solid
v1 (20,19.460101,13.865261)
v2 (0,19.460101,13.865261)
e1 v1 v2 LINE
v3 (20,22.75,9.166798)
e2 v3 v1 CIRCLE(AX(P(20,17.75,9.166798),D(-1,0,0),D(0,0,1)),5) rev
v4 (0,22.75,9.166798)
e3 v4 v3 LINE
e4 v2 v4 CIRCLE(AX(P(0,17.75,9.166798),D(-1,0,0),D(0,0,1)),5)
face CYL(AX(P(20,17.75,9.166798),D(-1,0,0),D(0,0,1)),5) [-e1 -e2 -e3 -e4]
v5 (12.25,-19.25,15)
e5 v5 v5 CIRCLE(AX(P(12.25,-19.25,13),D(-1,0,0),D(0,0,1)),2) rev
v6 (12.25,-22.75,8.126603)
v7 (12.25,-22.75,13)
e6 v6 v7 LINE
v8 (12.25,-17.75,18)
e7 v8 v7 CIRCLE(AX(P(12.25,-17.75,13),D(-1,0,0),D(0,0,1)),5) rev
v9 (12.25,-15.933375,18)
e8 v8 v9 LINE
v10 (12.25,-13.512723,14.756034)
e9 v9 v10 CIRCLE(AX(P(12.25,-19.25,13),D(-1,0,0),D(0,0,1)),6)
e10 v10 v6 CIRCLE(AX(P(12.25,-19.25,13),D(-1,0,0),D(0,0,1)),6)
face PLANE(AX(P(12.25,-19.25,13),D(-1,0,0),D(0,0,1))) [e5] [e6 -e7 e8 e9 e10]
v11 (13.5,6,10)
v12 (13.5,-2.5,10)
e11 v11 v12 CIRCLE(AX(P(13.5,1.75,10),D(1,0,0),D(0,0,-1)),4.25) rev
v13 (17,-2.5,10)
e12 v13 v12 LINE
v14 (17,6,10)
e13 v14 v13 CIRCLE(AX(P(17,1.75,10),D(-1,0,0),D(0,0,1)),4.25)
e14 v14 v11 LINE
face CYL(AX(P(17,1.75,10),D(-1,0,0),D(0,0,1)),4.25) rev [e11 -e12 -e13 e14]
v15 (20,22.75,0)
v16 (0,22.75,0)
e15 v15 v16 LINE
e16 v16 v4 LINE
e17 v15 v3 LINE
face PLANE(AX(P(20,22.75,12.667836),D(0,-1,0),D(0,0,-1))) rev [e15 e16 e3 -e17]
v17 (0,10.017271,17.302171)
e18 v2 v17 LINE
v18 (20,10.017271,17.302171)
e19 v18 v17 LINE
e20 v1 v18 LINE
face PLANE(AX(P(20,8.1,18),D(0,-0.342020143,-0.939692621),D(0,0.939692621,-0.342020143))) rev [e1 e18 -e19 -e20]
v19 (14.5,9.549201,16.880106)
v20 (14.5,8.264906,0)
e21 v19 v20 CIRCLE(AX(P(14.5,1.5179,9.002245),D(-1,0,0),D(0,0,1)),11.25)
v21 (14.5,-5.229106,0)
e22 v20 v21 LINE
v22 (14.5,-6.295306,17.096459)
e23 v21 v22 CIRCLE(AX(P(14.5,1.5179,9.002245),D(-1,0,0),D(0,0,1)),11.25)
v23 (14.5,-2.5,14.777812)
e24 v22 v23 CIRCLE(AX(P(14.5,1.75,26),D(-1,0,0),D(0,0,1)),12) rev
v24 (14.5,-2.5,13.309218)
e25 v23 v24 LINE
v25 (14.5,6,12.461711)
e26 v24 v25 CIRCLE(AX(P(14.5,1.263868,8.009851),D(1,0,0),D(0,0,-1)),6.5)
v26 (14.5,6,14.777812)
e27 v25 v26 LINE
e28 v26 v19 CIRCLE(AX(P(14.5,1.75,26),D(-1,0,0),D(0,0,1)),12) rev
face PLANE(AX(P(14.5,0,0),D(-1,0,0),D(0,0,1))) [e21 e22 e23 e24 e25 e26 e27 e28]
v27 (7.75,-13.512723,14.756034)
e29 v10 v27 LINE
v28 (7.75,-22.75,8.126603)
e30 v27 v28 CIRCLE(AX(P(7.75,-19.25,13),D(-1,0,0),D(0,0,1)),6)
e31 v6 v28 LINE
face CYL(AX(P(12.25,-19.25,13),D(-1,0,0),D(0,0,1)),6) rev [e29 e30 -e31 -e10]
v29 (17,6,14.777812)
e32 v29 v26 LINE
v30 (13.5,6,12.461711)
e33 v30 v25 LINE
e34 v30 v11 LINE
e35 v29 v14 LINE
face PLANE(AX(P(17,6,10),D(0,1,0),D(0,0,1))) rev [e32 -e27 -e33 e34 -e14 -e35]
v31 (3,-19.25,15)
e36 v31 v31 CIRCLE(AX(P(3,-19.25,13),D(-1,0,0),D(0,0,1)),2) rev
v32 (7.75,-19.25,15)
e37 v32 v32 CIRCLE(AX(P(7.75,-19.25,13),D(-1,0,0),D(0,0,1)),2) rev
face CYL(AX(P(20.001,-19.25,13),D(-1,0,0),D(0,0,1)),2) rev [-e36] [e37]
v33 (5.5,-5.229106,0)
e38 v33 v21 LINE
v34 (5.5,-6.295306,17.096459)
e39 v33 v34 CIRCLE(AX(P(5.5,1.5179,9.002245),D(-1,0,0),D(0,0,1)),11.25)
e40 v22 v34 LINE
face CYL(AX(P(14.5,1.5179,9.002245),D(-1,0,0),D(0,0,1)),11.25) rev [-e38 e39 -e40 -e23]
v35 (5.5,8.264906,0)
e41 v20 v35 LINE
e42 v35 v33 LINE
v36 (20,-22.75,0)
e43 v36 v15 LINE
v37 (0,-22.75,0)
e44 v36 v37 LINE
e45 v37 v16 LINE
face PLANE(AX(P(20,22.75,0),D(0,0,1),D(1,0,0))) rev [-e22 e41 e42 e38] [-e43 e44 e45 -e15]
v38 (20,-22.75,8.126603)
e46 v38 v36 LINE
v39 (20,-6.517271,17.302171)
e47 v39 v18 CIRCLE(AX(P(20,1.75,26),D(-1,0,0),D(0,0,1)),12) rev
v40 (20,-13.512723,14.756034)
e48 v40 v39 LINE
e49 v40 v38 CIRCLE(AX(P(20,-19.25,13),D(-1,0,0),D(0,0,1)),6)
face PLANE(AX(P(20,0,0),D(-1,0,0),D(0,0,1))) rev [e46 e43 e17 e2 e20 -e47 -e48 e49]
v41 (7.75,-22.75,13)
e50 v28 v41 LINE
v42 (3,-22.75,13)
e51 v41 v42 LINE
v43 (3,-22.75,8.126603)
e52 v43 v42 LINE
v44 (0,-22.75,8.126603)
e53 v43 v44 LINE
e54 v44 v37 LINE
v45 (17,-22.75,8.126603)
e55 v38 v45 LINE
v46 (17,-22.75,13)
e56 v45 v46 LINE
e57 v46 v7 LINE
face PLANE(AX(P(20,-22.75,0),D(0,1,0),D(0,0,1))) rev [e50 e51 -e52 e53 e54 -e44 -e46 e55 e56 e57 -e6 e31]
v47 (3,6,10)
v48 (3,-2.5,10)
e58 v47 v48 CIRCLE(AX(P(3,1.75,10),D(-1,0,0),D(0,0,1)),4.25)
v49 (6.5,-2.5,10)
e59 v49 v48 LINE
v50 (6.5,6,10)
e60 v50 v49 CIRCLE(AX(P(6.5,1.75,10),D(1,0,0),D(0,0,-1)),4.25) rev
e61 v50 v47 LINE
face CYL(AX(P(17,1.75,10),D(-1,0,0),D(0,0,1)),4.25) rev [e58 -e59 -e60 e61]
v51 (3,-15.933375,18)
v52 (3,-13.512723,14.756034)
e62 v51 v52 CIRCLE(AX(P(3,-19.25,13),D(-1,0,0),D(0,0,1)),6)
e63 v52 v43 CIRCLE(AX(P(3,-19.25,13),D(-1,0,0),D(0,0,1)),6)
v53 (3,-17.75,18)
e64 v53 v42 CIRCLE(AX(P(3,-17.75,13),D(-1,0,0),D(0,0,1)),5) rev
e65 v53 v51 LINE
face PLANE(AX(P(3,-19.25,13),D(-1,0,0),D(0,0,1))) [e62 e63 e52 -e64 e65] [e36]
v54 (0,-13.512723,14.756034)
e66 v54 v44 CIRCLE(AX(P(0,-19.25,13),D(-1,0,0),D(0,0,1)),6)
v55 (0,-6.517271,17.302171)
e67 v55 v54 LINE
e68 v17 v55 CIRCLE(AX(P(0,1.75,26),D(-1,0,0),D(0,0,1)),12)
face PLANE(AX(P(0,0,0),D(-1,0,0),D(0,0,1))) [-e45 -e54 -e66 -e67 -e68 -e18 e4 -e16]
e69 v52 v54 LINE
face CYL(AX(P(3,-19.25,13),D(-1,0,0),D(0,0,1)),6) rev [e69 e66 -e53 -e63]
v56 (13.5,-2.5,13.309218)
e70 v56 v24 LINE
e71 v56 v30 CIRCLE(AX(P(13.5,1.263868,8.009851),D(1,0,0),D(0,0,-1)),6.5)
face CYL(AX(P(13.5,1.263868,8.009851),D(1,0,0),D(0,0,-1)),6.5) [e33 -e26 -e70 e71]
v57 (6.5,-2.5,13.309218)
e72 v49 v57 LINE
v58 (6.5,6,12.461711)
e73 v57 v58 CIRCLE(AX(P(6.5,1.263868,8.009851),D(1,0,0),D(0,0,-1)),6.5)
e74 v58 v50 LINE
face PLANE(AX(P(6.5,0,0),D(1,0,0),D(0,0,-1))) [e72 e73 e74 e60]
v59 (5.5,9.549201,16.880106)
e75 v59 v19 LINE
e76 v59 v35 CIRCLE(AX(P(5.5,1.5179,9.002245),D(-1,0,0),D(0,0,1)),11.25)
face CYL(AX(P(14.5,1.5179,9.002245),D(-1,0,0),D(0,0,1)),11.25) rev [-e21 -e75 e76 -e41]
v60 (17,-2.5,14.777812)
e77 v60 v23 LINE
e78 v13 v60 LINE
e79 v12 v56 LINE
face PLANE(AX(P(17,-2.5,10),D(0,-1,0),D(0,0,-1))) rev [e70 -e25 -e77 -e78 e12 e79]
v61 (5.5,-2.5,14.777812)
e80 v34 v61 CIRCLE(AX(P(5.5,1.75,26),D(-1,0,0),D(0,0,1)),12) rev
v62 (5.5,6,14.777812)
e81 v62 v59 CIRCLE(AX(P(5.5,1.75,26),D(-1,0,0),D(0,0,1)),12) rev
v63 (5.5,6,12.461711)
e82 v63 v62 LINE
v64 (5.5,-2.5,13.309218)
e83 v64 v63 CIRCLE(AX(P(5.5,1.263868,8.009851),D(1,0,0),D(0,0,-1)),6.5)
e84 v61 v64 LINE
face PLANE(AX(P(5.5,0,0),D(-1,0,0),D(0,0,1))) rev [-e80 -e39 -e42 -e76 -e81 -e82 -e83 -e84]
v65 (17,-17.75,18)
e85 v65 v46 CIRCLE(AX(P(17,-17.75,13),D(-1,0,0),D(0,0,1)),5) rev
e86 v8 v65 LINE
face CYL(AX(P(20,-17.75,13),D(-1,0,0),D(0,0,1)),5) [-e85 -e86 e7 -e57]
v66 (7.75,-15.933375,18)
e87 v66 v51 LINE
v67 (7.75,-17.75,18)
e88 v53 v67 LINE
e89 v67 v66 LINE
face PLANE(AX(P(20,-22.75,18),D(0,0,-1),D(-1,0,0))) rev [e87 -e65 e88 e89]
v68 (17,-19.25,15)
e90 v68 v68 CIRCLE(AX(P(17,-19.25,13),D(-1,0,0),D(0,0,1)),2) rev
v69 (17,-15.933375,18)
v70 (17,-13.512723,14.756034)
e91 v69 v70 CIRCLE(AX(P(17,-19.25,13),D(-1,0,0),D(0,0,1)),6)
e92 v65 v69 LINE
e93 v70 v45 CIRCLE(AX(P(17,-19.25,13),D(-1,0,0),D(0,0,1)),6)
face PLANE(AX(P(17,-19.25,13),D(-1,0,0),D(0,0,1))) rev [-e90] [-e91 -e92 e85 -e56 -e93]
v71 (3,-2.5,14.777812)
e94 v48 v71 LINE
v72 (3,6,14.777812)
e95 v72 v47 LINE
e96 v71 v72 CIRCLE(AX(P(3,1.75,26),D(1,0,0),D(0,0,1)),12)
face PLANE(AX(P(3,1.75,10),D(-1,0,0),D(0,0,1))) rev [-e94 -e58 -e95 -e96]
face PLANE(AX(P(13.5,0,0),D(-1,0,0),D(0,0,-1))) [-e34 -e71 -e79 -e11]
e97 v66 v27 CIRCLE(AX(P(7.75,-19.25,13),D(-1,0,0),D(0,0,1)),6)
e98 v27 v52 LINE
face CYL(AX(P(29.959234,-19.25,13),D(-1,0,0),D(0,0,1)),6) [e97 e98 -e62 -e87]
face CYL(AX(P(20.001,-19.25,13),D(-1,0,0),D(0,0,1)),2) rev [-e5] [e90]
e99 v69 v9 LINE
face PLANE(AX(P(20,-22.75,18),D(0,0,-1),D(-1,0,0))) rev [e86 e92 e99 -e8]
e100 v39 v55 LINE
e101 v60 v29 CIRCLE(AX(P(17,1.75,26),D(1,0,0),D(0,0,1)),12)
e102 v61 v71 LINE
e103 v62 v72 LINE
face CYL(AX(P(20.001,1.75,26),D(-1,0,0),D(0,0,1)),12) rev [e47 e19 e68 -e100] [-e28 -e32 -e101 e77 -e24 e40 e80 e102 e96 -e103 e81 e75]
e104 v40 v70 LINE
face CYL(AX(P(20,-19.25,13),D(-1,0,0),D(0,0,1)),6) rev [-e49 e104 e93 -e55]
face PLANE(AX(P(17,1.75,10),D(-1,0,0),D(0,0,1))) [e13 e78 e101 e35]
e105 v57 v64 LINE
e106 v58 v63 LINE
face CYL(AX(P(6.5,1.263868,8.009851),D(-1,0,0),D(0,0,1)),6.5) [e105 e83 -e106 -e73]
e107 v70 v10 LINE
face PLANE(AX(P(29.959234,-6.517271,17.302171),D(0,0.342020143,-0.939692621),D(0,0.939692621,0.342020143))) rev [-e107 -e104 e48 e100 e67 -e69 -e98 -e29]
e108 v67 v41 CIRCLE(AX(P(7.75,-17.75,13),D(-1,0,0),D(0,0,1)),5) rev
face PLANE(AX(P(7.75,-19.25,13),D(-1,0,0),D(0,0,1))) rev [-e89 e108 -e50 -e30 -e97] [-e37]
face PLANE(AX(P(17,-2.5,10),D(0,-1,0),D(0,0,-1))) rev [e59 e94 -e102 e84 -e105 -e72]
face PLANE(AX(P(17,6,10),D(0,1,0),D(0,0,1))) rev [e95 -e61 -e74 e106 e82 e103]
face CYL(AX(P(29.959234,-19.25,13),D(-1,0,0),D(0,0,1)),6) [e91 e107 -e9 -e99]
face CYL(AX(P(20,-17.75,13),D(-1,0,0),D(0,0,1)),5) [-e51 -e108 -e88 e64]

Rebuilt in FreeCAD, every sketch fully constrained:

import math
import FreeCAD as App
import Part
import Sketcher
Q = App.Units.Quantity


def edges_at(feature, points):
    """Names of the edges that pass closest to the given points."""
    edges = feature.Shape.Edges
    near = lambda p: min(range(len(edges)), key=lambda i: edges[i].distToShape(Part.Vertex(*p))[0])
    return sorted({f"Edge{near(p) + 1}" for p in points})

doc = App.newDocument("Part")
body = doc.addObject("PartDesign::Body", "Body")

# Sketch on YZ plane
sketch1 = body.newObject("Sketcher::SketchObject", "Sketch")
sketch1.AttachmentSupport = (doc.getObject("YZ_Plane"), [""])
sketch1.MapMode = "FlatFace"
sketch1.addGeometry(Part.LineSegment(App.Vector(-23, 0, 0), App.Vector(23, 0, 0)), False)
sketch1.addGeometry(Part.LineSegment(App.Vector(23, 0, 0), App.Vector(23, 13, 0)), False)
sketch1.addGeometry(Part.LineSegment(App.Vector(23, 13, 0), App.Vector(8, 18, 0)), False)
sketch1.addGeometry(Part.LineSegment(App.Vector(8, 18, 0), App.Vector(-23, 18, 0)), False)
sketch1.addGeometry(Part.LineSegment(App.Vector(-23, 18, 0), App.Vector(-23, 0, 0)), False)
sketch1.addConstraint(Sketcher.Constraint("Coincident", 0, 2, 1, 1))
sketch1.addConstraint(Sketcher.Constraint("Coincident", 1, 2, 2, 1))
sketch1.addConstraint(Sketcher.Constraint("Coincident", 2, 2, 3, 1))
sketch1.addConstraint(Sketcher.Constraint("Coincident", 3, 2, 4, 1))
sketch1.addConstraint(Sketcher.Constraint("Coincident", 4, 2, 0, 1))
sketch1.addConstraint(Sketcher.Constraint("Horizontal", 0))
sketch1.addConstraint(Sketcher.Constraint("Vertical", 1))
sketch1.addConstraint(Sketcher.Constraint("Horizontal", 3))
sketch1.addConstraint(Sketcher.Constraint("Vertical", 4))
sketch1.addConstraint(Sketcher.Constraint("Symmetric", 0, 2, 4, 2, -1, 1))
sketch1.addConstraint(Sketcher.Constraint("DistanceY", 4, 2, 4, 1, 18.0))
sketch1.addConstraint(Sketcher.Constraint("Angle", 2, Q("160 deg")))
sketch1.addConstraint(Sketcher.Constraint("DistanceX", 0, 1, 0, 2, 45.5))
sketch1.addConstraint(Sketcher.Constraint("DistanceX", 3, 2, 3, 1, 30.85))
pad1 = body.newObject("PartDesign::Pad", "Pad")
pad1.Profile = sketch1
pad1.Length = 20

# Sketch on YZ plane
sketch2 = body.newObject("Sketcher::SketchObject", "Sketch001")
sketch2.AttachmentSupport = (doc.getObject("YZ_Plane"), [""])
sketch2.MapMode = "FlatFace"
sketch2.addGeometry(Part.Circle(App.Vector(-19.2, 13, 0), App.Vector(0, 0, 1), 2), False)
sketch2.addConstraint(Sketcher.Constraint("Diameter", 0, 4.0))
sketch2.addConstraint(Sketcher.Constraint("DistanceY", -1, 1, 0, 3, 13.0))
sketch2.addConstraint(Sketcher.Constraint("DistanceX", 0, 3, -1, 1, 19.25))
pocket1 = body.newObject("PartDesign::Pocket", "Pocket")
pocket1.Profile = sketch2
pocket1.Type = "UpToFirst"
pocket1.Reversed = True

# Sketch on YZ plane
sketch3 = body.newObject("Sketcher::SketchObject", "Sketch002")
sketch3.AttachmentSupport = (doc.getObject("YZ_Plane"), [""])
sketch3.MapMode = "FlatFace"
sketch3.addGeometry(Part.Circle(App.Vector(2, 26, 0), App.Vector(0, 0, 1), 12), False)
sketch3.addConstraint(Sketcher.Constraint("Diameter", 0, 24.0))
sketch3.addConstraint(Sketcher.Constraint("DistanceY", -1, 1, 0, 3, 26.0))
sketch3.addConstraint(Sketcher.Constraint("DistanceX", -1, 1, 0, 3, 1.75))
pocket2 = body.newObject("PartDesign::Pocket", "Pocket001")
pocket2.Profile = sketch3
pocket2.Length = 20
pocket2.Reversed = True

# Sketch on YZ plane
sketch4 = body.newObject("Sketcher::SketchObject", "Sketch003")
sketch4.AttachmentSupport = (doc.getObject("YZ_Plane"), [""])
sketch4.MapMode = "FlatFace"
sketch4.AttachmentOffset = App.Placement(App.Vector(0, 0, 3), App.Rotation())
sketch4.addGeometry(Part.LineSegment(App.Vector(6, 14.8, 0), App.Vector(6, 10, 0)), False)
sketch4.addGeometry(Part.ArcOfCircle(Part.Circle(App.Vector(1.8, 10, 0), App.Vector(0, 0, 1), 4.2), math.radians(180), math.radians(360)), False)
sketch4.addGeometry(Part.LineSegment(App.Vector(-2.5, 10, 0), App.Vector(-2.5, 14.8, 0)), False)
sketch4.addGeometry(Part.ArcOfCircle(Part.Circle(App.Vector(1.8, 26, 0), App.Vector(0, 0, 1), 12), math.radians(-111), math.radians(-69)), False)
sketch4.addConstraint(Sketcher.Constraint("Tangent", 0, 2, 1, 2))
sketch4.addConstraint(Sketcher.Constraint("Tangent", 1, 1, 2, 1))
sketch4.addConstraint(Sketcher.Constraint("Coincident", 2, 2, 3, 1))
sketch4.addConstraint(Sketcher.Constraint("Coincident", 3, 2, 0, 1))
sketch4.addConstraint(Sketcher.Constraint("Vertical", 0))
sketch4.addConstraint(Sketcher.Constraint("Vertical", 2))
sketch4.addConstraint(Sketcher.Constraint("Horizontal", 2, 2, 3, 2))
sketch4.addConstraint(Sketcher.Constraint("Radius", 3, 12.0))
sketch4.addConstraint(Sketcher.Constraint("Radius", 1, 4.25))
sketch4.addConstraint(Sketcher.Constraint("DistanceY", -1, 1, 1, 3, 10.0))
sketch4.addConstraint(Sketcher.Constraint("DistanceY", -1, 1, 3, 3, 26.0))
sketch4.addConstraint(Sketcher.Constraint("DistanceX", -1, 1, 0, 2, 6.0))
pocket3 = body.newObject("PartDesign::Pocket", "Pocket002")
pocket3.Profile = sketch4
pocket3.Length = 14
pocket3.Reversed = True
doc.recompute()

fillet = body.newObject("PartDesign::Fillet", "Fillet")
fillet.Base = (pocket3, edges_at(pocket3, [(10, -22.75, 18), (10, 22.75, 12.668)]))
fillet.Radius = 5

# Sketch on YZ plane
sketch5 = body.newObject("Sketcher::SketchObject", "Sketch004")
sketch5.AttachmentSupport = (doc.getObject("YZ_Plane"), [""])
sketch5.MapMode = "FlatFace"
sketch5.AttachmentOffset = App.Placement(App.Vector(0, 0, 10), App.Rotation())
sketch5.addGeometry(Part.Circle(App.Vector(2, 9, 0), App.Vector(0, 0, 1), 11), False)
sketch5.addConstraint(Sketcher.Constraint("Diameter", 0, 22.5))
sketch5.addConstraint(Sketcher.Constraint("DistanceX", -1, 1, 0, 3, 1.5179))
sketch5.addConstraint(Sketcher.Constraint("DistanceY", -1, 1, 0, 3, 9.002245))
pocket4 = body.newObject("PartDesign::Pocket", "Pocket003")
pocket4.Profile = sketch5
pocket4.Length = 9
pocket4.Midplane = True

# Sketch on YZ plane
sketch6 = body.newObject("Sketcher::SketchObject", "Sketch005")
sketch6.AttachmentSupport = (doc.getObject("YZ_Plane"), [""])
sketch6.MapMode = "FlatFace"
sketch6.AttachmentOffset = App.Placement(App.Vector(0, 0, 5.5), App.Rotation())
sketch6.addGeometry(Part.LineSegment(App.Vector(6, 12.5, 0), App.Vector(6, 10, 0)), False)
sketch6.addGeometry(Part.ArcOfCircle(Part.Circle(App.Vector(1.8, 10, 0), App.Vector(0, 0, 1), 4.2), math.radians(180), math.radians(360)), False)
sketch6.addGeometry(Part.LineSegment(App.Vector(-2.5, 10, 0), App.Vector(-2.5, 13.3, 0)), False)
sketch6.addGeometry(Part.ArcOfCircle(Part.Circle(App.Vector(1.3, 8, 0), App.Vector(0, 0, 1), 6.5), math.radians(125), math.radians(270)), False)
sketch6.addGeometry(Part.ArcOfCircle(Part.Circle(App.Vector(1.3, 8, 0), App.Vector(0, 0, 1), 6.5), math.radians(-90), math.radians(43)), False)
sketch6.addConstraint(Sketcher.Constraint("Tangent", 0, 2, 1, 2))
sketch6.addConstraint(Sketcher.Constraint("Tangent", 1, 1, 2, 1))
sketch6.addConstraint(Sketcher.Constraint("Coincident", 2, 2, 3, 1))
sketch6.addConstraint(Sketcher.Constraint("Tangent", 3, 2, 4, 1))
sketch6.addConstraint(Sketcher.Constraint("Coincident", 4, 2, 0, 1))
sketch6.addConstraint(Sketcher.Constraint("Vertical", 0))
sketch6.addConstraint(Sketcher.Constraint("Vertical", 2))
sketch6.addConstraint(Sketcher.Constraint("Equal", 3, 4))
sketch6.addConstraint(Sketcher.Constraint("Vertical", 4, 3, 3, 2))
sketch6.addConstraint(Sketcher.Constraint("Radius", 3, 6.5))
sketch6.addConstraint(Sketcher.Constraint("Radius", 1, 4.25))
sketch6.addConstraint(Sketcher.Constraint("DistanceY", -1, 1, 1, 3, 10.0))
sketch6.addConstraint(Sketcher.Constraint("DistanceX", -1, 1, 0, 2, 6.0))
sketch6.addConstraint(Sketcher.Constraint("DistanceY", 0, 2, 0, 1, 2.461711))
sketch6.addConstraint(Sketcher.Constraint("DistanceY", 2, 1, 2, 2, 3.309218))
pad2 = body.newObject("PartDesign::Pad", "Pad001")
pad2.Profile = sketch6
pad2.Length = 1
doc.recompute()

datumplane = body.newObject("PartDesign::Plane", "DatumPlane")
datumplane.AttachmentSupport = (doc.getObject("YZ_Plane"), [""])
datumplane.MapMode = "FlatFace"
datumplane.AttachmentOffset = App.Placement(App.Vector(0, 0, 10), App.Rotation())
mirrored = body.newObject("PartDesign::Mirrored", "Mirrored")
mirrored.Originals = [pad2]
mirrored.MirrorPlane = (datumplane, [""])
body.Tip = mirrored

# Sketch on YZ plane
sketch7 = body.newObject("Sketcher::SketchObject", "Sketch006")
sketch7.AttachmentSupport = (doc.getObject("YZ_Plane"), [""])
sketch7.MapMode = "FlatFace"
sketch7.AttachmentOffset = App.Placement(App.Vector(0, 0, 10), App.Rotation())
sketch7.addGeometry(Part.Circle(App.Vector(-19, 13, 0), App.Vector(0, 0, 1), 6), False)
sketch7.addConstraint(Sketcher.Constraint("Diameter", 0, 12.0))
sketch7.addConstraint(Sketcher.Constraint("DistanceY", -1, 1, 0, 3, 13.0))
sketch7.addConstraint(Sketcher.Constraint("DistanceX", 0, 3, -1, 1, 19.25))
pocket5 = body.newObject("PartDesign::Pocket", "Pocket004")
pocket5.Profile = sketch7
pocket5.Length = 4.5
pocket5.Midplane = True

# Sketch on YZ plane
sketch8 = body.newObject("Sketcher::SketchObject", "Sketch007")
sketch8.AttachmentSupport = (doc.getObject("YZ_Plane"), [""])
sketch8.MapMode = "FlatFace"
sketch8.addGeometry(Part.Circle(App.Vector(-19, 13, 0), App.Vector(0, 0, 1), 6), False)
sketch8.addConstraint(Sketcher.Constraint("Diameter", 0, 12.0))
sketch8.addConstraint(Sketcher.Constraint("DistanceY", -1, 1, 0, 3, 13.0))
sketch8.addConstraint(Sketcher.Constraint("DistanceX", 0, 3, -1, 1, 19.25))
pocket6 = body.newObject("PartDesign::Pocket", "Pocket005")
pocket6.Profile = sketch8
pocket6.Length = 3
pocket6.Reversed = True

# Sketch on YZ plane
sketch9 = body.newObject("Sketcher::SketchObject", "Sketch008")
sketch9.AttachmentSupport = (doc.getObject("YZ_Plane"), [""])
sketch9.MapMode = "FlatFace"
sketch9.AttachmentOffset = App.Placement(App.Vector(0, 0, 17), App.Rotation())
sketch9.addGeometry(Part.Circle(App.Vector(-19, 13, 0), App.Vector(0, 0, 1), 6), False)
sketch9.addConstraint(Sketcher.Constraint("Diameter", 0, 12.0))
sketch9.addConstraint(Sketcher.Constraint("DistanceY", -1, 1, 0, 3, 13.0))
sketch9.addConstraint(Sketcher.Constraint("DistanceX", 0, 3, -1, 1, 19.25))
pocket7 = body.newObject("PartDesign::Pocket", "Pocket006")
pocket7.Profile = sketch9
pocket7.Length = 3
pocket7.Reversed = True

# Sketch on YZ plane
sketch10 = body.newObject("Sketcher::SketchObject", "Sketch009")
sketch10.AttachmentSupport = (doc.getObject("YZ_Plane"), [""])
sketch10.MapMode = "FlatFace"
sketch10.addGeometry(Part.LineSegment(App.Vector(-7.2, 18, 0), App.Vector(-6.5, 17.3, 0)), False)
sketch10.addGeometry(Part.LineSegment(App.Vector(-6.5, 17.3, 0), App.Vector(-13.5, 14.8, 0)), False)
sketch10.addGeometry(Part.ArcOfCircle(Part.Circle(App.Vector(-19.3, 13, 0), App.Vector(0, 0, 1), 6), math.radians(17), math.radians(56)), False)
sketch10.addGeometry(Part.LineSegment(App.Vector(-15.9, 18, 0), App.Vector(-7.2, 18, 0)), False)
sketch10.addConstraint(Sketcher.Constraint("Coincident", 0, 2, 1, 1))
sketch10.addConstraint(Sketcher.Constraint("Coincident", 1, 2, 2, 1))
sketch10.addConstraint(Sketcher.Constraint("Coincident", 2, 2, 3, 1))
sketch10.addConstraint(Sketcher.Constraint("Coincident", 3, 2, 0, 1))
sketch10.addConstraint(Sketcher.Constraint("Horizontal", 3))
sketch10.addConstraint(Sketcher.Constraint("Radius", 2, 6.0))
sketch10.addConstraint(Sketcher.Constraint("Angle", 1, Q("-160 deg")))
sketch10.addConstraint(Sketcher.Constraint("DistanceY", -1, 1, 2, 3, 13.0))
sketch10.addConstraint(Sketcher.Constraint("DistanceY", -1, 1, 2, 2, 18.0))
sketch10.addConstraint(Sketcher.Constraint("DistanceX", 2, 3, -1, 1, 19.25))
sketch10.addConstraint(Sketcher.Constraint("DistanceX", 3, 2, 0, 2, 0.677001))
sketch10.addConstraint(Sketcher.Constraint("DistanceX", 3, 1, 3, 2, 8.739103))
sketch10.addConstraint(Sketcher.Constraint("DistanceY", -1, 1, 0, 2, 17.302171))
pocket8 = body.newObject("PartDesign::Pocket", "Pocket007")
pocket8.Profile = sketch10
pocket8.Length = 20
pocket8.Reversed = True

doc.recompute()
